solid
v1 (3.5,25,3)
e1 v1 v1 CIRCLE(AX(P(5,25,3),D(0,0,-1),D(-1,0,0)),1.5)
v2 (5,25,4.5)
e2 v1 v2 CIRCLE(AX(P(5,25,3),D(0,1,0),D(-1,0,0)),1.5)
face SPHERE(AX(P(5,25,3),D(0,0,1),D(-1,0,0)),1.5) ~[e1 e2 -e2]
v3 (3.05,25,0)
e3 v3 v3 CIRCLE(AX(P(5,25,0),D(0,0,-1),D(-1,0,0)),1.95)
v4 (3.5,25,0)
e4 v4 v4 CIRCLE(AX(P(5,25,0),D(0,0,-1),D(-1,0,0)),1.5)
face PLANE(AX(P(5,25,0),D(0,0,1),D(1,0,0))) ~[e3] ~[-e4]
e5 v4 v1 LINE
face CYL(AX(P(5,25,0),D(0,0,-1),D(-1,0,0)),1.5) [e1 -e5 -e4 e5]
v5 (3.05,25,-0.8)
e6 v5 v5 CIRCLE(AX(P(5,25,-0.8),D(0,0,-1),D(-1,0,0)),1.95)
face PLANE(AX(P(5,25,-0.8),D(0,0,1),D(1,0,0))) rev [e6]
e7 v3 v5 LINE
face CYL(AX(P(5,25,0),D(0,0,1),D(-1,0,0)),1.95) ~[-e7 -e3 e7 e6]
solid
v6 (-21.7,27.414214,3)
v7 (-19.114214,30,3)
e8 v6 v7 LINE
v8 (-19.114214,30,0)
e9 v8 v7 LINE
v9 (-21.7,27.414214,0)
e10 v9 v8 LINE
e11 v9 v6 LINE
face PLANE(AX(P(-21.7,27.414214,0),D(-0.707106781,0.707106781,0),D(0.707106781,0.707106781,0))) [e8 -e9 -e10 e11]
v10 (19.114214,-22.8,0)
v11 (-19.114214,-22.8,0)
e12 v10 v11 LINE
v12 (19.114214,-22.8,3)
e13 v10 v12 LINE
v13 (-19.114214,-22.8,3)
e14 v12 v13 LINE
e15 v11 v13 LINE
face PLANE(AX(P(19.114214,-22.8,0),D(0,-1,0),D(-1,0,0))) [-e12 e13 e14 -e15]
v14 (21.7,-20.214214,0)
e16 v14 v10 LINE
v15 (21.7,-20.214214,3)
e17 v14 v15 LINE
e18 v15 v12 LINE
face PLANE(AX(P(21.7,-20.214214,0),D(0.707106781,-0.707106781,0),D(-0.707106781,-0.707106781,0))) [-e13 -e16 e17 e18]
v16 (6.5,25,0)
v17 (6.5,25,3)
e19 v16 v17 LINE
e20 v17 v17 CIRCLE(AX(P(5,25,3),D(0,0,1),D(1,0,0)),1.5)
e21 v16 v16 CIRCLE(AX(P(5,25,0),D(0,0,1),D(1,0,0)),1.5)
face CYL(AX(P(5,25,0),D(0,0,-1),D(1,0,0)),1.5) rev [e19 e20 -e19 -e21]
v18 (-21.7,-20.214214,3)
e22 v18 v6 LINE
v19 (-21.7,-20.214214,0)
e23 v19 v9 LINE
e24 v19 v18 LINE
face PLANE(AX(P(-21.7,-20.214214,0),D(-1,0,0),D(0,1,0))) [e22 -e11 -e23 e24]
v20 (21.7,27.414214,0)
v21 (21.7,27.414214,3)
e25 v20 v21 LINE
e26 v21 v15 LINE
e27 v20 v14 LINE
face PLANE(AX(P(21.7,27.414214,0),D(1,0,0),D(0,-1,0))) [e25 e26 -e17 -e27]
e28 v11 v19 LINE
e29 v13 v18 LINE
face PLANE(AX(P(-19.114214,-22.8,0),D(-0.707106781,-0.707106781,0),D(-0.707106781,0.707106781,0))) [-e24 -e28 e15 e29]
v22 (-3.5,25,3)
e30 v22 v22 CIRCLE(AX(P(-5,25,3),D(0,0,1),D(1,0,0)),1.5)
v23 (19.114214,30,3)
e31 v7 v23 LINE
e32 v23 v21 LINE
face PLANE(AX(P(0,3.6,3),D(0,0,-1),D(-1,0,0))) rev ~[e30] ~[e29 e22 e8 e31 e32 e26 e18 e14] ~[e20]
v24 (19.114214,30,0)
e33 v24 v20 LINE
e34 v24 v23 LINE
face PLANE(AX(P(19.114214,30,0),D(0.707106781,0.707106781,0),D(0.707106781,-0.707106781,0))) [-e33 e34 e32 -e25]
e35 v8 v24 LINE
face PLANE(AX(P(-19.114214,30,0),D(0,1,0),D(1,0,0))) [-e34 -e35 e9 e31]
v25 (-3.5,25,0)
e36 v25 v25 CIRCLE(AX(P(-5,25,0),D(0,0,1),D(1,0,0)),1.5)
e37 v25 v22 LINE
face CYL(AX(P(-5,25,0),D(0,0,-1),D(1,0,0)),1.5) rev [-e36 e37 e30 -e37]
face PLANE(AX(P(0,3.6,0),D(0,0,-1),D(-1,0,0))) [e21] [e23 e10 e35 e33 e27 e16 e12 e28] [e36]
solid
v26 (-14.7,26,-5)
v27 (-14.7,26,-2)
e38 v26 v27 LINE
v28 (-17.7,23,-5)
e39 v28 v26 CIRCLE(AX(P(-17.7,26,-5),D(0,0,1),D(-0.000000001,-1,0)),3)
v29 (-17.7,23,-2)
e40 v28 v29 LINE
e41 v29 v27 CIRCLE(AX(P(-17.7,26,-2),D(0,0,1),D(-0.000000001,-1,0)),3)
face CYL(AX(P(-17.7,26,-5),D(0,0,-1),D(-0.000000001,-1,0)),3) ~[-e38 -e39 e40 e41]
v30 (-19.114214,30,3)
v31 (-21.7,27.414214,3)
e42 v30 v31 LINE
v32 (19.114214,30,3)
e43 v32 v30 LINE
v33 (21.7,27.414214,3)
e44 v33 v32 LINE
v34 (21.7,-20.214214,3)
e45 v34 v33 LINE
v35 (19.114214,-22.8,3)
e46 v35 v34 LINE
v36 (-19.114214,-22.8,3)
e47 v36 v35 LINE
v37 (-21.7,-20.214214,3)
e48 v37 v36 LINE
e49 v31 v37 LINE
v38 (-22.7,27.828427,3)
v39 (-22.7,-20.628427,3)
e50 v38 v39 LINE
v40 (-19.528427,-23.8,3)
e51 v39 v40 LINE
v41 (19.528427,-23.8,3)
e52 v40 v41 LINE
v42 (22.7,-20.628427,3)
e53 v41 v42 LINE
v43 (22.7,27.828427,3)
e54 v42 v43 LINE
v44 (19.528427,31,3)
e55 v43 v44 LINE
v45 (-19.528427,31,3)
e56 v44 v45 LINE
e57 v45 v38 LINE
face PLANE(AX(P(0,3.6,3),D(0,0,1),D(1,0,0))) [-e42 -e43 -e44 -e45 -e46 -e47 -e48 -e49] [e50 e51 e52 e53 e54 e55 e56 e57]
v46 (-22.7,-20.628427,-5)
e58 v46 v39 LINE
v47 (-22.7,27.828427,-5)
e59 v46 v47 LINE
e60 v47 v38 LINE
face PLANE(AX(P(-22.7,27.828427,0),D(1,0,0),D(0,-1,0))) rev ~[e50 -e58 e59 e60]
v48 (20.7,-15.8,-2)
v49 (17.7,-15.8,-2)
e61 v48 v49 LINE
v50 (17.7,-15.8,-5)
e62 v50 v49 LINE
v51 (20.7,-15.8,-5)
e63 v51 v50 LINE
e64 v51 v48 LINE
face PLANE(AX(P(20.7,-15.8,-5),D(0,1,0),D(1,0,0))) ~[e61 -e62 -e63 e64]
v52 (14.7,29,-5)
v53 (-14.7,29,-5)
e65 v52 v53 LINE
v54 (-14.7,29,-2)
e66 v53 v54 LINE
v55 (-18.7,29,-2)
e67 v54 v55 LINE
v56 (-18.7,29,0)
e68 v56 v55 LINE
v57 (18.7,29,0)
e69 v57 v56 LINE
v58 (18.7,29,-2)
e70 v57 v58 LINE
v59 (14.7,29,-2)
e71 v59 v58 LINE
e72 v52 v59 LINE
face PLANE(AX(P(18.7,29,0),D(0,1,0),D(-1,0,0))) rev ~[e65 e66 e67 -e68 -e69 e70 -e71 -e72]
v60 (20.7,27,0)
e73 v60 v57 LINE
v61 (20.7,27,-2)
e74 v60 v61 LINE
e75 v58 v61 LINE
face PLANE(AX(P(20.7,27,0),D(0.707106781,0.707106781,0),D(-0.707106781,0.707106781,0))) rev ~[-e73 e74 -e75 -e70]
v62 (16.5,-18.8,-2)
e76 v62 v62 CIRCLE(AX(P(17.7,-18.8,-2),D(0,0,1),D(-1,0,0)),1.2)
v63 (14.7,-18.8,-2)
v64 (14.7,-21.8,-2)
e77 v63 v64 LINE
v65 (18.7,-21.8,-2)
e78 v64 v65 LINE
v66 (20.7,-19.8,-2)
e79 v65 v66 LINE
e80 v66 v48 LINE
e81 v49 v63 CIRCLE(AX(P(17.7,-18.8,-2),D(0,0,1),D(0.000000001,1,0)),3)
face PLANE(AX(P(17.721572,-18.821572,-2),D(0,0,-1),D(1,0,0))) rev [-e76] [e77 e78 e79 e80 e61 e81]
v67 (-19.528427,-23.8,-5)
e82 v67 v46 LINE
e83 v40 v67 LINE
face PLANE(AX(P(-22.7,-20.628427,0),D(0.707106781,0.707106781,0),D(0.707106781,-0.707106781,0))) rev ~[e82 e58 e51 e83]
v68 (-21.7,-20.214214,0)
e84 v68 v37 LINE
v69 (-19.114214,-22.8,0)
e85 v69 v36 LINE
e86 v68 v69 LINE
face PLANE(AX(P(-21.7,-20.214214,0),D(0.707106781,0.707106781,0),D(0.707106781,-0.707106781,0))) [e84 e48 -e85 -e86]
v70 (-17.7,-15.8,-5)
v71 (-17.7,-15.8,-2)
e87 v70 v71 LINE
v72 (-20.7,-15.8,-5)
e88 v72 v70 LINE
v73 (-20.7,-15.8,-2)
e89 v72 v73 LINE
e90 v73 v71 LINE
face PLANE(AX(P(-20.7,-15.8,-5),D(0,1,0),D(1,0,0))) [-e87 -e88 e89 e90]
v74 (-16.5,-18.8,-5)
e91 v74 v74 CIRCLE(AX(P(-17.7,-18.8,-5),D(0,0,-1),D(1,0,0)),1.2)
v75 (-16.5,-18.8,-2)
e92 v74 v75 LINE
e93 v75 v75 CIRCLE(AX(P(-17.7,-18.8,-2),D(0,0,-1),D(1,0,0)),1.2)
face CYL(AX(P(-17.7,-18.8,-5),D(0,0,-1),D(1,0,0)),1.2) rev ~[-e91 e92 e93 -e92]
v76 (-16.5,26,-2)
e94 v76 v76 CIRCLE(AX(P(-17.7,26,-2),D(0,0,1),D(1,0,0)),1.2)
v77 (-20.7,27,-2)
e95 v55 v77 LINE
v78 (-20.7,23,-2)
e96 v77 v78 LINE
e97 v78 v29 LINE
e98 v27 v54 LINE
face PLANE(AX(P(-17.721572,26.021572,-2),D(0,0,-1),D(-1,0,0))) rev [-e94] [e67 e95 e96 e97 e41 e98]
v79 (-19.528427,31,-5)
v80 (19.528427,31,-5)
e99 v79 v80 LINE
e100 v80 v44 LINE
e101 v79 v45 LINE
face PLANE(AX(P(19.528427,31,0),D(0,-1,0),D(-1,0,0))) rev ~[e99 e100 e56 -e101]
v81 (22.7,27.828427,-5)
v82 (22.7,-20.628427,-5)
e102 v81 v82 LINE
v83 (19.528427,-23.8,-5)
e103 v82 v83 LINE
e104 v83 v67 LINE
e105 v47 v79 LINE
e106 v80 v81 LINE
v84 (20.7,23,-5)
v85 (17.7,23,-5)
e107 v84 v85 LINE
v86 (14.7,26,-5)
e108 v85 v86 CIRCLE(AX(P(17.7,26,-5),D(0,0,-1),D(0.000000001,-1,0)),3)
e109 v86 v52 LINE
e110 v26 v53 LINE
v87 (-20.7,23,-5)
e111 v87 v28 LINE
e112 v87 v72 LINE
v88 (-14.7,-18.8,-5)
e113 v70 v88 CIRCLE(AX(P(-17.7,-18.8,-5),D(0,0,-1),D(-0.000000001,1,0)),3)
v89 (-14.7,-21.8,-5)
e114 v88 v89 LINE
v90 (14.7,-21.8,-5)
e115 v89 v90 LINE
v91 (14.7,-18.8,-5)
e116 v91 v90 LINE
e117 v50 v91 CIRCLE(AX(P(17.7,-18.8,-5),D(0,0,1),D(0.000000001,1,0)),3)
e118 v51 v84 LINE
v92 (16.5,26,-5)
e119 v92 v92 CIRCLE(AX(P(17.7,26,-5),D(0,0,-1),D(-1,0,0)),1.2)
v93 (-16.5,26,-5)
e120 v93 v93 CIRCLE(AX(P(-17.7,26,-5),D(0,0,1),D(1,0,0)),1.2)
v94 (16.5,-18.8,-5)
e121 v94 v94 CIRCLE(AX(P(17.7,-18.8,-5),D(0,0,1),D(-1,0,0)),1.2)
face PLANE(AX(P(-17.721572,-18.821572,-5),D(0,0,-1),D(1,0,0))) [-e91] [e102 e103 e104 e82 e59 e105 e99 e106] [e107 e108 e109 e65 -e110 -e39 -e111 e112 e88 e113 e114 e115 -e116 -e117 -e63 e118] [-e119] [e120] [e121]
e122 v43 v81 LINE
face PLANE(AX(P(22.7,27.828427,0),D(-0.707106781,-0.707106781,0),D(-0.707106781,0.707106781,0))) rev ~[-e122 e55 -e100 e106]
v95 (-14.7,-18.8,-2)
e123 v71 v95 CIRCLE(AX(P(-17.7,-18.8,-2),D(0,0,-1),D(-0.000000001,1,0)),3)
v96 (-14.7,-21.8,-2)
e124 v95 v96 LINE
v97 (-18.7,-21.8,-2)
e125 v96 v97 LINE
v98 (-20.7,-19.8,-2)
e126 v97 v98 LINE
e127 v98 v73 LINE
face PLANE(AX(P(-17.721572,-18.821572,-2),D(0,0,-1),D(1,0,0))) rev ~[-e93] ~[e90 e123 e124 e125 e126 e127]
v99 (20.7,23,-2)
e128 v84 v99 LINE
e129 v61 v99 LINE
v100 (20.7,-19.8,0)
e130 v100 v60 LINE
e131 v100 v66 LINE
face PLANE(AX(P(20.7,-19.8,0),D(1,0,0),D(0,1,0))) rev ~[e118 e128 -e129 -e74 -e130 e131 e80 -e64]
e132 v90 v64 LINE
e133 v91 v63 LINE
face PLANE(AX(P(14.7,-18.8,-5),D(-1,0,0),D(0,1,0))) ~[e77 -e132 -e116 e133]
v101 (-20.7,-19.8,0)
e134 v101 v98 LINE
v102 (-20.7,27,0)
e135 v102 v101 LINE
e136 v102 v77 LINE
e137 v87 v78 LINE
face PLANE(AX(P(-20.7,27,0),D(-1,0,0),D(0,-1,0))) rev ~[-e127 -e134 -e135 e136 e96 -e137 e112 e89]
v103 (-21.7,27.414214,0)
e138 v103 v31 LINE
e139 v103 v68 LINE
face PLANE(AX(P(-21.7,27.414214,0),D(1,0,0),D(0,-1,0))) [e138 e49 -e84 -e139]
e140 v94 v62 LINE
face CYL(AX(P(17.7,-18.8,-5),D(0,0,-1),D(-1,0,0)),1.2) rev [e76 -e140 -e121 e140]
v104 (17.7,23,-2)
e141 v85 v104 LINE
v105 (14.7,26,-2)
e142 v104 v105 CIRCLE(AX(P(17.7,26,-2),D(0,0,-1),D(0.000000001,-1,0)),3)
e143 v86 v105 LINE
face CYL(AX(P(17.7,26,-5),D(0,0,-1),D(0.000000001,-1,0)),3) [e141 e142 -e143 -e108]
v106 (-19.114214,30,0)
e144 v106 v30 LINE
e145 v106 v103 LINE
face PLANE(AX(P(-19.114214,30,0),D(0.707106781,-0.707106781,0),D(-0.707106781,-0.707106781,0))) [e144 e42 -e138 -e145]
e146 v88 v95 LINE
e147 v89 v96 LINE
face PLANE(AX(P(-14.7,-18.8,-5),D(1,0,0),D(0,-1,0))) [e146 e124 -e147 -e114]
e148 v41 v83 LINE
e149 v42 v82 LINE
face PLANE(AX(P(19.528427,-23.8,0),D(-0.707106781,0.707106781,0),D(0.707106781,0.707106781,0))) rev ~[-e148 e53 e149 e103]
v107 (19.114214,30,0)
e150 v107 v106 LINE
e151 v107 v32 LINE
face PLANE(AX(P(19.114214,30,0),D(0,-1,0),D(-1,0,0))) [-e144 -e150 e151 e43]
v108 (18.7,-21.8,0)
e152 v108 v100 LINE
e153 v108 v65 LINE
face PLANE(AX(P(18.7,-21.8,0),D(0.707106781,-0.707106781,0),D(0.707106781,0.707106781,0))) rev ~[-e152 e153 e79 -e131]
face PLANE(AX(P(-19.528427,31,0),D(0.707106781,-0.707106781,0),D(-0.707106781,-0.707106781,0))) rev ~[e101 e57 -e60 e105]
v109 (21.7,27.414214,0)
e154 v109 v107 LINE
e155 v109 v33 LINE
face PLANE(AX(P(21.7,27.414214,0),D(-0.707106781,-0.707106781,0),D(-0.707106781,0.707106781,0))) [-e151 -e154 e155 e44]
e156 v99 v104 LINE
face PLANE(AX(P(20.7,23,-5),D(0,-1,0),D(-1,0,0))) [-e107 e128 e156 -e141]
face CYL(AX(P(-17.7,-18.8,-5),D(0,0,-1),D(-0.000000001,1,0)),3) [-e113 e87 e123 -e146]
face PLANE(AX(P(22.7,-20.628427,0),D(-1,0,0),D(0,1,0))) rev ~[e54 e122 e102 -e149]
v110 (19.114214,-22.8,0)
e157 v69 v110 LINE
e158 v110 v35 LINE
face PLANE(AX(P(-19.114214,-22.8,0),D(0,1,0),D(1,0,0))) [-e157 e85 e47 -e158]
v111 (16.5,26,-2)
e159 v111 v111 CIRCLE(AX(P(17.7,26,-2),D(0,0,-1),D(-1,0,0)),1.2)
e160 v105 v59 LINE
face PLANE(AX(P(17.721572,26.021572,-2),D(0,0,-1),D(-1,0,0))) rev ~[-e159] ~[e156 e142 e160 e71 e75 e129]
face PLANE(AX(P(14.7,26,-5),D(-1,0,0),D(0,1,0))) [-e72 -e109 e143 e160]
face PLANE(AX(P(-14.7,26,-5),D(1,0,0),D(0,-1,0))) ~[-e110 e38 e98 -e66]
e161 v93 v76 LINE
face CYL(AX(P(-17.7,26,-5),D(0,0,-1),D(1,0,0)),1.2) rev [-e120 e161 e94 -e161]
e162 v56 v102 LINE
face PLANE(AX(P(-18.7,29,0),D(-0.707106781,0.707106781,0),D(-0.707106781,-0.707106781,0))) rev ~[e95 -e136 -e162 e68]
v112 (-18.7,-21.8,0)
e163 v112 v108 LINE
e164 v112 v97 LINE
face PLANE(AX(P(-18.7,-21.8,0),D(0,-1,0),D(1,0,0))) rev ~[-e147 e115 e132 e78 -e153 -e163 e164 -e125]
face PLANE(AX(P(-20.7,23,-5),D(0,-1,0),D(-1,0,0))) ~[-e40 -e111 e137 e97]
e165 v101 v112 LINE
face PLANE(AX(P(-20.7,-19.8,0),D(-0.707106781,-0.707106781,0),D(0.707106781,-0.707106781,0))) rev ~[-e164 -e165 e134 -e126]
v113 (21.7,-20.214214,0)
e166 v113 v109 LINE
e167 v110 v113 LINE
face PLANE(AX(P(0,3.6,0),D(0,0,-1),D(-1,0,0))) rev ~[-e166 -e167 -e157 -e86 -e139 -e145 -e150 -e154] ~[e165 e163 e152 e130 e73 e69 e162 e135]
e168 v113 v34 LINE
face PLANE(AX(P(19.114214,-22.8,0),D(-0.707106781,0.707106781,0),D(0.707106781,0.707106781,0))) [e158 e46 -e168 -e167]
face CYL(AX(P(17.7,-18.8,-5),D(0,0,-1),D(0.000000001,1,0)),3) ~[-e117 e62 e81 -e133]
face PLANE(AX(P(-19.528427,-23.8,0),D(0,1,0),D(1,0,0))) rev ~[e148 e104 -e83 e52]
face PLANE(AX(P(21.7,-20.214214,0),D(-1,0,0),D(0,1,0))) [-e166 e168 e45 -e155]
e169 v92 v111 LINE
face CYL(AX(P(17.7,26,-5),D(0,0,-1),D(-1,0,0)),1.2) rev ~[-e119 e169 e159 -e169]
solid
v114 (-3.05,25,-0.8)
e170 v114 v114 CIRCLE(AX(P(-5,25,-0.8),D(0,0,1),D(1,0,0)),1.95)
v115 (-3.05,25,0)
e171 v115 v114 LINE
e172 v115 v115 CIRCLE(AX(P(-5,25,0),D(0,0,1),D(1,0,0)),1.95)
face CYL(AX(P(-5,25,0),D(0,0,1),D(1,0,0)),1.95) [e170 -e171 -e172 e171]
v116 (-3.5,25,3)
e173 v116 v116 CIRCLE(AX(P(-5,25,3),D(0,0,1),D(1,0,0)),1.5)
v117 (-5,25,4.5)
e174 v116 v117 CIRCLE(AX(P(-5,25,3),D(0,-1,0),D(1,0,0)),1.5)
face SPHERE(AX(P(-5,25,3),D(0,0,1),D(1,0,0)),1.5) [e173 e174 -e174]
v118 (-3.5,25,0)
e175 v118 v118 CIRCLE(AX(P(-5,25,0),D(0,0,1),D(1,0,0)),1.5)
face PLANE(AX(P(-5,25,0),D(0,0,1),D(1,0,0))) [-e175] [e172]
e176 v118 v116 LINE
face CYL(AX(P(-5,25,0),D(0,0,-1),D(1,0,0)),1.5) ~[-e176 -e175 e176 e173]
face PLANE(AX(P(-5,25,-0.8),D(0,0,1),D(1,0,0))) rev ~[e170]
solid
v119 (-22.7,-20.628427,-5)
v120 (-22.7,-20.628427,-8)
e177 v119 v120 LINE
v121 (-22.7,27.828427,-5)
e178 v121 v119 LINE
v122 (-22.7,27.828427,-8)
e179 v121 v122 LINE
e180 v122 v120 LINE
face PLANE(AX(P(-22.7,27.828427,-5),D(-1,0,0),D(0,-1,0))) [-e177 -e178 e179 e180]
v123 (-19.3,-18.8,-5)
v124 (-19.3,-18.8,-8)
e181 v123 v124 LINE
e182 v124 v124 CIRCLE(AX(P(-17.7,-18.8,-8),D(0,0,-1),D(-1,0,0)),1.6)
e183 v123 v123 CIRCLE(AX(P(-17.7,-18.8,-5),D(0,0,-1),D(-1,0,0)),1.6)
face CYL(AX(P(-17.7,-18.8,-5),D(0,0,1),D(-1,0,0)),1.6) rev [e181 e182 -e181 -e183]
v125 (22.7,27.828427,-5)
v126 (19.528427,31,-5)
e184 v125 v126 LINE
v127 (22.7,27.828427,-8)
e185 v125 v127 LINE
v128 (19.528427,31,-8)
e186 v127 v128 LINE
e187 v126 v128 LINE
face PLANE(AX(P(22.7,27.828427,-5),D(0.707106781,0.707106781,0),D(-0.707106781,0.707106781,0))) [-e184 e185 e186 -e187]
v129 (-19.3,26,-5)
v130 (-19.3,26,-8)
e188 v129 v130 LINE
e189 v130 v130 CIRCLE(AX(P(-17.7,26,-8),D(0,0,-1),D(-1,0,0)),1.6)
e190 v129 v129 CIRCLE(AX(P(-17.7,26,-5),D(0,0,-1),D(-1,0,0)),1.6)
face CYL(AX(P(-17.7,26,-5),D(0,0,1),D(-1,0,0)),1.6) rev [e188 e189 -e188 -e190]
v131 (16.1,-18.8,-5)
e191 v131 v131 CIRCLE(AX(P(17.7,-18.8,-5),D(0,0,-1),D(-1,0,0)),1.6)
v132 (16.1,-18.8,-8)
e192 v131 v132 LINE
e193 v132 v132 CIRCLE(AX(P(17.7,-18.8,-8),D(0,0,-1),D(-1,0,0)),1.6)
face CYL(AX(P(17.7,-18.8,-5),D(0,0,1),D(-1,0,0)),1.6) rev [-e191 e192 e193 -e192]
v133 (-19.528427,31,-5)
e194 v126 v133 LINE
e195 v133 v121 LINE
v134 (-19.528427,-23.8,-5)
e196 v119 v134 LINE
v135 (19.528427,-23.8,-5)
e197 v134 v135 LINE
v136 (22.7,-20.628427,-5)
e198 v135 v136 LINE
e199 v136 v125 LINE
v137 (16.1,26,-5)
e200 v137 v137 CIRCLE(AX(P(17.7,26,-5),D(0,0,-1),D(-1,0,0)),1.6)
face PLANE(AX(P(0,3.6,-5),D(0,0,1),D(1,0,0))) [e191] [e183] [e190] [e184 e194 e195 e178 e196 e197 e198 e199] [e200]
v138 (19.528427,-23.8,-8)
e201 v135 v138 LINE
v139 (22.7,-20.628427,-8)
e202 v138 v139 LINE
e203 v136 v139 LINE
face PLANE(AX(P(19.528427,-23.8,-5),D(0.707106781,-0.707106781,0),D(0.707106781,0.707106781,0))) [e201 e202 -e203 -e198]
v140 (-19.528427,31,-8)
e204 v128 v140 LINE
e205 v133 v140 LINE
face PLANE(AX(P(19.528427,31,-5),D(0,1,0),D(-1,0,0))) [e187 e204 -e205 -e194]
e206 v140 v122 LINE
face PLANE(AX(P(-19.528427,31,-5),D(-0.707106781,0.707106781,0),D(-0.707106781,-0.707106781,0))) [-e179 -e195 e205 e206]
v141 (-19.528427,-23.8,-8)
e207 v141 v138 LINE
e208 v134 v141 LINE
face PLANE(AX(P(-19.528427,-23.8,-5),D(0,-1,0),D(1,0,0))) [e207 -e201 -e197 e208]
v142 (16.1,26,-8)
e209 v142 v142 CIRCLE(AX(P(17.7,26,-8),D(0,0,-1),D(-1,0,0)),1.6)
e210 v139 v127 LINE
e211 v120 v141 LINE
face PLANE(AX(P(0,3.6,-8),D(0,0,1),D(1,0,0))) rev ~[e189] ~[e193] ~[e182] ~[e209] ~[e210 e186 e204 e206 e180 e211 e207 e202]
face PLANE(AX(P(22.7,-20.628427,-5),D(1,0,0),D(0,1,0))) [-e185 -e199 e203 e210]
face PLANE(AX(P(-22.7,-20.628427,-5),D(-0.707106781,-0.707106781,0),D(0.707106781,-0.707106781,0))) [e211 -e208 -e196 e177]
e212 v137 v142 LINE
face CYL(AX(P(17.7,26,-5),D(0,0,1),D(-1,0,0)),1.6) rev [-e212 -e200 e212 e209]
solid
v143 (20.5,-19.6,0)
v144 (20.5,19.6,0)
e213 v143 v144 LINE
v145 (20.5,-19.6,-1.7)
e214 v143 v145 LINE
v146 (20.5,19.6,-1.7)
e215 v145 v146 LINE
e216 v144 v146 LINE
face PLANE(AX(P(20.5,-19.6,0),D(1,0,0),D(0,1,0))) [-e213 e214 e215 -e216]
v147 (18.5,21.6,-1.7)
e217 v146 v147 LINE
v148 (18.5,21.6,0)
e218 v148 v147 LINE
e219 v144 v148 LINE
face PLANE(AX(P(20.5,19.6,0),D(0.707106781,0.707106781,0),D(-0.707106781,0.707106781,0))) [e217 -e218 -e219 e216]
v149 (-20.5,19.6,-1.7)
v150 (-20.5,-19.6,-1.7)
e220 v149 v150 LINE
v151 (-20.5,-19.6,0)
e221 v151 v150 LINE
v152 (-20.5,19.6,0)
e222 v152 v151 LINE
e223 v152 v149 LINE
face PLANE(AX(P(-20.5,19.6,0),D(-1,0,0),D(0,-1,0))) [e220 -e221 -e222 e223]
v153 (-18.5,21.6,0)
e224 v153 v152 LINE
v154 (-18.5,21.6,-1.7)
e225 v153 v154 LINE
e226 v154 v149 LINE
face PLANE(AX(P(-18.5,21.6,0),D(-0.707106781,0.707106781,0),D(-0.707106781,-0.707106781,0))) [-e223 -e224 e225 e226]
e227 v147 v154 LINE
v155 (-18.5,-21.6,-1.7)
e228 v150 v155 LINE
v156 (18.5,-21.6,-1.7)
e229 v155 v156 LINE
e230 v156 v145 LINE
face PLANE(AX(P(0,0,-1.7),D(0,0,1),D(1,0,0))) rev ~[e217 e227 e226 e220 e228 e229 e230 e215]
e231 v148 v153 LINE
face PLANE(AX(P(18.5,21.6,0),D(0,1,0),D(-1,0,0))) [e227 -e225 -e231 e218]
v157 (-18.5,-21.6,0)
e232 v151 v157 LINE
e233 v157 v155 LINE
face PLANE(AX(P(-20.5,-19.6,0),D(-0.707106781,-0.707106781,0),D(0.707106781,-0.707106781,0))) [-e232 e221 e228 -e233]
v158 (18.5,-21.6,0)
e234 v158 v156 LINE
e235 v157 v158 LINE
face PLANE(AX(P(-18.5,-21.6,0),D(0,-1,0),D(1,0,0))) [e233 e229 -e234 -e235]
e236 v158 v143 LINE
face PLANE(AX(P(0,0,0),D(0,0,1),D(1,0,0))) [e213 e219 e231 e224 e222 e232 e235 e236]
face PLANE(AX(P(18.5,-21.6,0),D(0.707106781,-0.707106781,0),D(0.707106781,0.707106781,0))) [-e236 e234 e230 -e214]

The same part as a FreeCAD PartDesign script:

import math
import FreeCAD as App
import Part
import Sketcher
from FreeCAD import Vector


def edges_at(feature, points):
    """Names of the edges that pass closest to the given points."""
    edges = feature.Shape.Edges
    near = lambda p: min(range(len(edges)), key=lambda i: edges[i].distToShape(Part.Vertex(*p))[0])
    return sorted({f"Edge{near(p) + 1}" for p in points})

doc = App.newDocument("Part")
body = doc.addObject("PartDesign::Body", "Body")

# Sketch on XY plane
sketch1 = body.newObject("Sketcher::SketchObject", "Sketch")
sketch1.AttachmentSupport = (doc.getObject("XY_Plane"), [""])
sketch1.MapMode = "FlatFace"
sketch1.addGeometry([
    Part.LineSegment(Vector(-18.5, 21.6, 0), Vector(-20.5, 19.6, 0)),  # 0
    Part.LineSegment(Vector(-20.5, 19.6, 0), Vector(-20.5, -19.6, 0)),  # 1
    Part.LineSegment(Vector(-20.5, -19.6, 0), Vector(-18.5, -21.6, 0)),  # 2
    Part.LineSegment(Vector(-18.5, -21.6, 0), Vector(18.5, -21.6, 0)),  # 3
    Part.LineSegment(Vector(18.5, -21.6, 0), Vector(20.5, -19.6, 0)),  # 4
    Part.LineSegment(Vector(20.5, -19.6, 0), Vector(20.5, 19.6, 0)),  # 5
    Part.LineSegment(Vector(20.5, 19.6, 0), Vector(18.5, 21.6, 0)),  # 6
    Part.LineSegment(Vector(18.5, 21.6, 0), Vector(-18.5, 21.6, 0)),  # 7
], False)
sketch1.addConstraint([
    Sketcher.Constraint("Coincident", 0, 2, 1, 1),
    Sketcher.Constraint("Coincident", 1, 2, 2, 1),
    Sketcher.Constraint("Coincident", 2, 2, 3, 1),
    Sketcher.Constraint("Coincident", 3, 2, 4, 1),
    Sketcher.Constraint("Coincident", 4, 2, 5, 1),
    Sketcher.Constraint("Coincident", 5, 2, 6, 1),
    Sketcher.Constraint("Coincident", 6, 2, 7, 1),
    Sketcher.Constraint("Coincident", 7, 2, 0, 1),
    Sketcher.Constraint("Vertical", 1),
    Sketcher.Constraint("Horizontal", 3),
    Sketcher.Constraint("Vertical", 5),
    Sketcher.Constraint("Horizontal", 7),
    Sketcher.Constraint("Symmetric", 0, 2, 4, 2, -1, 1),
    Sketcher.Constraint("Symmetric", 2, 2, 6, 2, -1, 1),
    Sketcher.Constraint("Perpendicular", 0, 2),
    Sketcher.Constraint("Perpendicular", 2, 4),
    Sketcher.Constraint("Perpendicular", 4, 6),
    Sketcher.Constraint("Horizontal", 1, 2, 4, 2),
    Sketcher.Constraint("Vertical", 3, 2, 6, 2),
    Sketcher.Constraint("DistanceX", 3, 1, 3, 2, 37.0),
    Sketcher.Constraint("DistanceY", 1, 2, 1, 1, 39.2),
    Sketcher.Constraint("DistanceX", 1, 2, 2, 2, 2.0),
])
pad1 = body.newObject("PartDesign::Pad", "Pad")
pad1.Profile = sketch1
pad1.Length = 1.7
pad1.Reversed = True
body2 = doc.addObject("PartDesign::Body", "Body001")

# Sketch on XY plane
sketch2 = body2.newObject("Sketcher::SketchObject", "Sketch001")
sketch2.AttachmentSupport = (doc.getObject("XY_Plane001"), [""])
sketch2.MapMode = "FlatFace"
sketch2.addGeometry(Part.Circle(Vector(-5, 25, 0), Vector(0, 0, 1), 1.9), False)
sketch2.addConstraint([
    Sketcher.Constraint("Diameter", 0, 3.9),
    Sketcher.Constraint("DistanceX", 0, 3, -1, 1, 5.0),
    Sketcher.Constraint("DistanceY", -1, 1, 0, 3, 25.0),
])
pad2 = body2.newObject("PartDesign::Pad", "Pad001")
pad2.Profile = sketch2
pad2.Length = 0.8
pad2.Reversed = True

# Sketch on XY plane
sketch3 = body2.newObject("Sketcher::SketchObject", "Sketch002")
sketch3.AttachmentSupport = (doc.getObject("XY_Plane001"), [""])
sketch3.MapMode = "FlatFace"
sketch3.addGeometry(Part.Circle(Vector(-5, 25, 0), Vector(0, 0, 1), 1.5), False)
sketch3.addConstraint([
    Sketcher.Constraint("Diameter", 0, 3.0),
    Sketcher.Constraint("DistanceX", 0, 3, -1, 1, 5.0),
    Sketcher.Constraint("DistanceY", -1, 1, 0, 3, 25.0),
])
pad3 = body2.newObject("PartDesign::Pad", "Pad002")
pad3.Profile = sketch3
pad3.Length = 4.5
doc.recompute()

fillet = body2.newObject("PartDesign::Fillet", "Fillet")
fillet.Base = (pad3, edges_at(pad3, [(-6.5, 25, 4.5)]))
fillet.Radius = 1.5
body3 = doc.addObject("PartDesign::Body", "Body002")
doc.recompute()

mirroring = doc.addObject("Part::Mirroring", "Mirroring")
mirroring.Source = body2
mirroring.Base = Vector(0, 0, 0)
mirroring.Normal = Vector(1, 0, 0)
body3.BaseFeature = mirroring
doc.recompute()
body4 = doc.addObject("PartDesign::Body", "Body003")

# Sketch on XY plane
sketch4 = body4.newObject("Sketcher::SketchObject", "Sketch003")
sketch4.AttachmentSupport = (doc.getObject("XY_Plane003"), [""])
sketch4.MapMode = "FlatFace"
sketch4.addGeometry([
    Part.LineSegment(Vector(19.5, 31, 0), Vector(-19.5, 31, 0)),  # 0
    Part.LineSegment(Vector(-19.5, 31, 0), Vector(-22.7, 27.8, 0)),  # 1
    Part.LineSegment(Vector(-22.7, 27.8, 0), Vector(-22.7, -20.6, 0)),  # 2
    Part.LineSegment(Vector(-22.7, -20.6, 0), Vector(-19.5, -23.8, 0)),  # 3
    Part.LineSegment(Vector(-19.5, -23.8, 0), Vector(19.5, -23.8, 0)),  # 4
    Part.LineSegment(Vector(19.5, -23.8, 0), Vector(22.7, -20.6, 0)),  # 5
    Part.LineSegment(Vector(22.7, -20.6, 0), Vector(22.7, 27.8, 0)),  # 6
    Part.LineSegment(Vector(22.7, 27.8, 0), Vector(19.5, 31, 0)),  # 7
    Part.LineSegment(Vector(-18.7, -21.8, 0), Vector(-20.7, -19.8, 0)),  # 8
    Part.LineSegment(Vector(-20.7, -19.8, 0), Vector(-20.7, 27, 0)),  # 9
    Part.LineSegment(Vector(-20.7, 27, 0), Vector(-18.7, 29, 0)),  # 10
    Part.LineSegment(Vector(-18.7, 29, 0), Vector(18.7, 29, 0)),  # 11
    Part.LineSegment(Vector(18.7, 29, 0), Vector(20.7, 27, 0)),  # 12
    Part.LineSegment(Vector(20.7, 27, 0), Vector(20.7, -19.8, 0)),  # 13
    Part.LineSegment(Vector(20.7, -19.8, 0), Vector(18.7, -21.8, 0)),  # 14
    Part.LineSegment(Vector(18.7, -21.8, 0), Vector(-18.7, -21.8, 0)),  # 15
], False)
sketch4.addConstraint([
    Sketcher.Constraint("Coincident", 0, 2, 1, 1),
    Sketcher.Constraint("Coincident", 1, 2, 2, 1),
    Sketcher.Constraint("Coincident", 2, 2, 3, 1),
    Sketcher.Constraint("Coincident", 3, 2, 4, 1),
    Sketcher.Constraint("Coincident", 4, 2, 5, 1),
    Sketcher.Constraint("Coincident", 5, 2, 6, 1),
    Sketcher.Constraint("Coincident", 6, 2, 7, 1),
    Sketcher.Constraint("Coincident", 7, 2, 0, 1),
    Sketcher.Constraint("Coincident", 8, 2, 9, 1),
    Sketcher.Constraint("Coincident", 9, 2, 10, 1),
    Sketcher.Constraint("Coincident", 10, 2, 11, 1),
    Sketcher.Constraint("Coincident", 11, 2, 12, 1),
    Sketcher.Constraint("Coincident", 12, 2, 13, 1),
    Sketcher.Constraint("Coincident", 13, 2, 14, 1),
    Sketcher.Constraint("Coincident", 14, 2, 15, 1),
    Sketcher.Constraint("Coincident", 15, 2, 8, 1),
    Sketcher.Constraint("Horizontal", 0),
    Sketcher.Constraint("Vertical", 2),
    Sketcher.Constraint("Horizontal", 4),
    Sketcher.Constraint("Vertical", 6),
    Sketcher.Constraint("Vertical", 9),
    Sketcher.Constraint("Horizontal", 11),
    Sketcher.Constraint("Vertical", 13),
    Sketcher.Constraint("Horizontal", 15),
    Sketcher.Constraint("Symmetric", 2, 2, 5, 2, -2),
    Sketcher.Constraint("Symmetric", 9, 2, 12, 2, -2),
    Sketcher.Constraint("Perpendicular", 1, 3),
    Sketcher.Constraint("Perpendicular", 3, 5),
    Sketcher.Constraint("Perpendicular", 5, 7),
    Sketcher.Constraint("Parallel", 7, 8),
    Sketcher.Constraint("Perpendicular", 8, 10),
    Sketcher.Constraint("Perpendicular", 10, 12),
    Sketcher.Constraint("Perpendicular", 12, 14),
    Sketcher.Constraint("Horizontal", 1, 2, 6, 2),
    Sketcher.Constraint("Horizontal", 8, 2, 13, 2),
    Sketcher.Constraint("Vertical", 0, 2, 3, 2),
    Sketcher.Constraint("Vertical", 4, 2, 7, 2),
    Sketcher.Constraint("Vertical", 11, 2, 14, 2),
    Sketcher.Constraint("DistanceX", 11, 1, 11, 2, 37.4),
    Sketcher.Constraint("DistanceY", 9, 1, 9, 2, 46.8),
    Sketcher.Constraint("DistanceY", -1, 1, 0, 2, 31.0),
    Sketcher.Constraint("DistanceY", -1, 1, 9, 2, 27.0),
    Sketcher.Constraint("DistanceY", -1, 1, 10, 2, 29.0),
    Sketcher.Constraint("DistanceX", 2, 2, 8, 2, 2.0),
    Sketcher.Constraint("DistanceY", 3, 2, 8, 2, 4.0),
    Sketcher.Constraint("Distance", 1, 4.485281),
])
pad4 = body4.newObject("PartDesign::Pad", "Pad003")
pad4.Profile = sketch4
pad4.Length = 5
pad4.Reversed = True

# Sketch on XY plane
sketch5 = body4.newObject("Sketcher::SketchObject", "Sketch004")
sketch5.AttachmentSupport = (doc.getObject("XY_Plane003"), [""])
sketch5.MapMode = "FlatFace"
sketch5.addGeometry([
    Part.LineSegment(Vector(22.7, 27.8, 0), Vector(19.5, 31, 0)),  # 0
    Part.LineSegment(Vector(19.5, 31, 0), Vector(-19.5, 31, 0)),  # 1
    Part.LineSegment(Vector(-19.5, 31, 0), Vector(-22.7, 27.8, 0)),  # 2
    Part.LineSegment(Vector(-22.7, 27.8, 0), Vector(-22.7, -20.6, 0)),  # 3
    Part.LineSegment(Vector(-22.7, -20.6, 0), Vector(-19.5, -23.8, 0)),  # 4
    Part.LineSegment(Vector(-19.5, -23.8, 0), Vector(19.5, -23.8, 0)),  # 5
    Part.LineSegment(Vector(19.5, -23.8, 0), Vector(22.7, -20.6, 0)),  # 6
    Part.LineSegment(Vector(22.7, -20.6, 0), Vector(22.7, 27.8, 0)),  # 7
    Part.LineSegment(Vector(19.1, 30, 0), Vector(21.7, 27.4, 0)),  # 8
    Part.LineSegment(Vector(21.7, 27.4, 0), Vector(21.7, -20.2, 0)),  # 9
    Part.LineSegment(Vector(21.7, -20.2, 0), Vector(19.1, -22.8, 0)),  # 10
    Part.LineSegment(Vector(19.1, -22.8, 0), Vector(-19.1, -22.8, 0)),  # 11
    Part.LineSegment(Vector(-19.1, -22.8, 0), Vector(-21.7, -20.2, 0)),  # 12
    Part.LineSegment(Vector(-21.7, -20.2, 0), Vector(-21.7, 27.4, 0)),  # 13
    Part.LineSegment(Vector(-21.7, 27.4, 0), Vector(-19.1, 30, 0)),  # 14
    Part.LineSegment(Vector(-19.1, 30, 0), Vector(19.1, 30, 0)),  # 15
], False)
sketch5.addConstraint([
    Sketcher.Constraint("Coincident", 0, 2, 1, 1),
    Sketcher.Constraint("Coincident", 1, 2, 2, 1),
    Sketcher.Constraint("Coincident", 2, 2, 3, 1),
    Sketcher.Constraint("Coincident", 3, 2, 4, 1),
    Sketcher.Constraint("Coincident", 4, 2, 5, 1),
    Sketcher.Constraint("Coincident", 5, 2, 6, 1),
    Sketcher.Constraint("Coincident", 6, 2, 7, 1),
    Sketcher.Constraint("Coincident", 7, 2, 0, 1),
    Sketcher.Constraint("Coincident", 8, 2, 9, 1),
    Sketcher.Constraint("Coincident", 9, 2, 10, 1),
    Sketcher.Constraint("Coincident", 10, 2, 11, 1),
    Sketcher.Constraint("Coincident", 11, 2, 12, 1),
    Sketcher.Constraint("Coincident", 12, 2, 13, 1),
    Sketcher.Constraint("Coincident", 13, 2, 14, 1),
    Sketcher.Constraint("Coincident", 14, 2, 15, 1),
    Sketcher.Constraint("Coincident", 15, 2, 8, 1),
    Sketcher.Constraint("Horizontal", 1),
    Sketcher.Constraint("Vertical", 3),
    Sketcher.Constraint("Horizontal", 5),
    Sketcher.Constraint("Vertical", 7),
    Sketcher.Constraint("Vertical", 9),
    Sketcher.Constraint("Horizontal", 11),
    Sketcher.Constraint("Vertical", 13),
    Sketcher.Constraint("Horizontal", 15),
    Sketcher.Constraint("Symmetric", 3, 2, 6, 2, -2),
    Sketcher.Constraint("Symmetric", 9, 2, 12, 2, -2),
    Sketcher.Constraint("Perpendicular", 0, 2),
    Sketcher.Constraint("Perpendicular", 2, 4),
    Sketcher.Constraint("Perpendicular", 4, 6),
    Sketcher.Constraint("Perpendicular", 6, 8),
    Sketcher.Constraint("Perpendicular", 8, 10),
    Sketcher.Constraint("Perpendicular", 10, 12),
    Sketcher.Constraint("Perpendicular", 12, 14),
    Sketcher.Constraint("Horizontal", 2, 2, 7, 2),
    Sketcher.Constraint("Horizontal", 8, 2, 13, 2),
    Sketcher.Constraint("Vertical", 1, 2, 4, 2),
    Sketcher.Constraint("Vertical", 0, 2, 5, 2),
    Sketcher.Constraint("Vertical", 11, 2, 14, 2),
    Sketcher.Constraint("DistanceY", -1, 1, 0, 2, 31.0),
    Sketcher.Constraint("DistanceY", -1, 1, 14, 2, 30.0),
    Sketcher.Constraint("DistanceX", 8, 2, 7, 2, 1.0),
    Sketcher.Constraint("DistanceY", 5, 2, 10, 2, 1.0),
    Sketcher.Constraint("DistanceX", 2, 2, -1, 1, 22.7),
    Sketcher.Constraint("DistanceY", 4, 2, -1, 1, 23.8),
    Sketcher.Constraint("Distance", 0, 4.485281),
    Sketcher.Constraint("DistanceX", 11, 2, 11, 1, 38.228427),
])
pad5 = body4.newObject("PartDesign::Pad", "Pad004")
pad5.Profile = sketch5
pad5.Length = 3

# Sketch on XY plane
sketch6 = body4.newObject("Sketcher::SketchObject", "Sketch005")
sketch6.AttachmentSupport = (doc.getObject("XY_Plane003"), [""])
sketch6.MapMode = "FlatFace"
sketch6.AttachmentOffset = App.Placement(Vector(0, 0, -5), App.Rotation())
sketch6.addGeometry([
    Part.LineSegment(Vector(14.7, 29, 0), Vector(18.7, 29, 0)),  # 0
    Part.LineSegment(Vector(18.7, 29, 0), Vector(20.7, 27, 0)),  # 1
    Part.LineSegment(Vector(20.7, 27, 0), Vector(20.7, 23, 0)),  # 2
    Part.LineSegment(Vector(20.7, 23, 0), Vector(17.7, 23, 0)),  # 3
    Part.ArcOfCircle(Part.Circle(Vector(17.7, 26, 0), Vector(0, 0, 1), 3), math.radians(180), math.radians(270)),  # 4
    Part.LineSegment(Vector(14.7, 26, 0), Vector(14.7, 29, 0)),  # 5
    Part.Circle(Vector(17.7, 26, 0), Vector(0, 0, 1), 1.2),  # 6
], False)
sketch6.addConstraint([
    Sketcher.Constraint("Coincident", 0, 2, 1, 1),
    Sketcher.Constraint("Coincident", 1, 2, 2, 1),
    Sketcher.Constraint("Coincident", 2, 2, 3, 1),
    Sketcher.Constraint("Tangent", 3, 2, 4, 2),
    Sketcher.Constraint("Tangent", 4, 1, 5, 1),
    Sketcher.Constraint("Coincident", 5, 2, 0, 1),
    Sketcher.Constraint("Horizontal", 0),
    Sketcher.Constraint("Vertical", 2),
    Sketcher.Constraint("Horizontal", 3),
    Sketcher.Constraint("Vertical", 5),
    Sketcher.Constraint("Coincident", 6, 3, 4, 3),
    Sketcher.Constraint("Equal", 0, 2),
    Sketcher.Constraint("Equal", 3, 5),
    Sketcher.Constraint("Radius", 4, 3.0),
    Sketcher.Constraint("Diameter", 6, 2.4),
    Sketcher.Constraint("DistanceX", 0, 1, 0, 2, 4.0),
    Sketcher.Constraint("DistanceX", 3, 2, 3, 1, 3.0),
    Sketcher.Constraint("DistanceY", -1, 1, 4, 3, 26.0),
    Sketcher.Constraint("DistanceX", -1, 1, 4, 3, 17.7),
])
pad6 = body4.newObject("PartDesign::Pad", "Pad005")
pad6.Profile = sketch6
pad6.Length = 3
doc.recompute()

mirrored = body4.newObject("PartDesign::Mirrored", "Mirrored")
mirrored.Originals = [pad6]
mirrored.MirrorPlane = (doc.getObject("YZ_Plane003"), [""])
body4.Tip = mirrored
doc.recompute()

datumplane = body4.newObject("PartDesign::Plane", "DatumPlane")
datumplane.AttachmentSupport = (doc.getObject("XZ_Plane003"), [""])
datumplane.MapMode = "FlatFace"
datumplane.AttachmentOffset = App.Placement(Vector(0, 0, -3.6), App.Rotation())
mirrored2 = body4.newObject("PartDesign::Mirrored", "Mirrored001")
mirrored2.Originals = [pad6]
mirrored2.MirrorPlane = (datumplane, [""])
body4.Tip = mirrored2

# Sketch on XY plane
sketch7 = body4.newObject("Sketcher::SketchObject", "Sketch006")
sketch7.AttachmentSupport = (doc.getObject("XY_Plane003"), [""])
sketch7.MapMode = "FlatFace"
sketch7.AttachmentOffset = App.Placement(Vector(0, 0, -5), App.Rotation())
sketch7.addGeometry([
    Part.LineSegment(Vector(-14.7, -21.8, 0), Vector(-18.7, -21.8, 0)),  # 0
    Part.LineSegment(Vector(-18.7, -21.8, 0), Vector(-20.7, -19.8, 0)),  # 1
    Part.LineSegment(Vector(-20.7, -19.8, 0), Vector(-20.7, -15.8, 0)),  # 2
    Part.LineSegment(Vector(-20.7, -15.8, 0), Vector(-17.7, -15.8, 0)),  # 3
    Part.ArcOfCircle(Part.Circle(Vector(-17.7, -18.8, 0), Vector(0, 0, 1), 3), math.radians(0), math.radians(90)),  # 4
    Part.LineSegment(Vector(-14.7, -18.8, 0), Vector(-14.7, -21.8, 0)),  # 5
    Part.Circle(Vector(-17.7, -18.8, 0), Vector(0, 0, 1), 1.2),  # 6
], False)
sketch7.addConstraint([
    Sketcher.Constraint("Coincident", 0, 2, 1, 1),
    Sketcher.Constraint("Coincident", 1, 2, 2, 1),
    Sketcher.Constraint("Coincident", 2, 2, 3, 1),
    Sketcher.Constraint("Tangent", 3, 2, 4, 2),
    Sketcher.Constraint("Tangent", 4, 1, 5, 1),
    Sketcher.Constraint("Coincident", 5, 2, 0, 1),
    Sketcher.Constraint("Horizontal", 0),
    Sketcher.Constraint("Vertical", 2),
    Sketcher.Constraint("Horizontal", 3),
    Sketcher.Constraint("Vertical", 5),
    Sketcher.Constraint("Coincident", 6, 3, 4, 3),
    Sketcher.Constraint("Equal", 0, 2),
    Sketcher.Constraint("Equal", 3, 5),
    Sketcher.Constraint("Radius", 4, 3.0),
    Sketcher.Constraint("Diameter", 6, 2.4),
    Sketcher.Constraint("DistanceX", 0, 2, 0, 1, 4.0),
    Sketcher.Constraint("DistanceX", 3, 1, 3, 2, 3.0),
    Sketcher.Constraint("DistanceX", 4, 3, -1, 1, 17.7),
    Sketcher.Constraint("DistanceY", 4, 3, -1, 1, 18.8),
])
pad7 = body4.newObject("PartDesign::Pad", "Pad006")
pad7.Profile = sketch7
pad7.Length = 3
body5 = doc.addObject("PartDesign::Body", "Body004")

# Sketch on XY plane
sketch8 = body5.newObject("Sketcher::SketchObject", "Sketch007")
sketch8.AttachmentSupport = (doc.getObject("XY_Plane004"), [""])
sketch8.MapMode = "FlatFace"
sketch8.addGeometry([
    Part.LineSegment(Vector(-19.1, 30, 0), Vector(-21.7, 27.4, 0)),  # 0
    Part.LineSegment(Vector(-21.7, 27.4, 0), Vector(-21.7, -20.2, 0)),  # 1
    Part.LineSegment(Vector(-21.7, -20.2, 0), Vector(-19.1, -22.8, 0)),  # 2
    Part.LineSegment(Vector(-19.1, -22.8, 0), Vector(19.1, -22.8, 0)),  # 3
    Part.LineSegment(Vector(19.1, -22.8, 0), Vector(21.7, -20.2, 0)),  # 4
    Part.LineSegment(Vector(21.7, -20.2, 0), Vector(21.7, 27.4, 0)),  # 5
    Part.LineSegment(Vector(21.7, 27.4, 0), Vector(19.1, 30, 0)),  # 6
    Part.LineSegment(Vector(19.1, 30, 0), Vector(-19.1, 30, 0)),  # 7
    Part.Circle(Vector(5, 25, 0), Vector(0, 0, 1), 1.5),  # 8
    Part.Circle(Vector(-5, 25, 0), Vector(0, 0, 1), 1.5),  # 9
], False)
sketch8.addConstraint([
    Sketcher.Constraint("Coincident", 0, 2, 1, 1),
    Sketcher.Constraint("Coincident", 1, 2, 2, 1),
    Sketcher.Constraint("Coincident", 2, 2, 3, 1),
    Sketcher.Constraint("Coincident", 3, 2, 4, 1),
    Sketcher.Constraint("Coincident", 4, 2, 5, 1),
    Sketcher.Constraint("Coincident", 5, 2, 6, 1),
    Sketcher.Constraint("Coincident", 6, 2, 7, 1),
    Sketcher.Constraint("Coincident", 7, 2, 0, 1),
    Sketcher.Constraint("Vertical", 1),
    Sketcher.Constraint("Horizontal", 3),
    Sketcher.Constraint("Vertical", 5),
    Sketcher.Constraint("Horizontal", 7),
    Sketcher.Constraint("Equal", 8, 9),
    Sketcher.Constraint("Symmetric", 8, 3, 9, 3, -2),
    Sketcher.Constraint("Symmetric", 1, 2, 4, 2, -2),
    Sketcher.Constraint("Perpendicular", 0, 2),
    Sketcher.Constraint("Perpendicular", 2, 4),
    Sketcher.Constraint("Perpendicular", 4, 6),
    Sketcher.Constraint("Horizontal", 0, 2, 5, 2),
    Sketcher.Constraint("Vertical", 3, 2, 6, 2),
    Sketcher.Constraint("Vertical", 2, 2, 7, 2),
    Sketcher.Constraint("Diameter", 8, 3.0),
    Sketcher.Constraint("DistanceX", -1, 1, 8, 3, 5.0),
    Sketcher.Constraint("DistanceY", -1, 1, 8, 3, 25.0),
    Sketcher.Constraint("DistanceY", -1, 1, 6, 2, 30.0),
    Sketcher.Constraint("DistanceX", 0, 2, -1, 1, 21.7),
    Sketcher.Constraint("DistanceY", 2, 2, -1, 1, 22.8),
    Sketcher.Constraint("DistanceX", 3, 1, 3, 2, 38.228427),
])
pad8 = body5.newObject("PartDesign::Pad", "Pad007")
pad8.Profile = sketch8
pad8.Length = 3
body6 = doc.addObject("PartDesign::Body", "Body005")

# Sketch on XY plane
sketch9 = body6.newObject("Sketcher::SketchObject", "Sketch008")
sketch9.AttachmentSupport = (doc.getObject("XY_Plane005"), [""])
sketch9.MapMode = "FlatFace"
sketch9.AttachmentOffset = App.Placement(Vector(0, 0, -5), App.Rotation())
sketch9.addGeometry([
    Part.LineSegment(Vector(19.5, 31, 0), Vector(22.7, 27.8, 0)),  # 0
    Part.LineSegment(Vector(22.7, 27.8, 0), Vector(22.7, -20.6, 0)),  # 1
    Part.LineSegment(Vector(22.7, -20.6, 0), Vector(19.5, -23.8, 0)),  # 2
    Part.LineSegment(Vector(19.5, -23.8, 0), Vector(-19.5, -23.8, 0)),  # 3
    Part.LineSegment(Vector(-19.5, -23.8, 0), Vector(-22.7, -20.6, 0)),  # 4
    Part.LineSegment(Vector(-22.7, -20.6, 0), Vector(-22.7, 27.8, 0)),  # 5
    Part.LineSegment(Vector(-22.7, 27.8, 0), Vector(-19.5, 31, 0)),  # 6
    Part.LineSegment(Vector(-19.5, 31, 0), Vector(19.5, 31, 0)),  # 7
    Part.Circle(Vector(-17.7, -18.8, 0), Vector(0, 0, 1), 1.6),  # 8
    Part.Circle(Vector(17.7, -18.8, 0), Vector(0, 0, 1), 1.6),  # 9
    Part.Circle(Vector(-17.7, 26, 0), Vector(0, 0, 1), 1.6),  # 10
    Part.Circle(Vector(17.7, 26, 0), Vector(0, 0, 1), 1.6),  # 11
], False)
sketch9.addConstraint([
    Sketcher.Constraint("Coincident", 0, 2, 1, 1),
    Sketcher.Constraint("Coincident", 1, 2, 2, 1),
    Sketcher.Constraint("Coincident", 2, 2, 3, 1),
    Sketcher.Constraint("Coincident", 3, 2, 4, 1),
    Sketcher.Constraint("Coincident", 4, 2, 5, 1),
    Sketcher.Constraint("Coincident", 5, 2, 6, 1),
    Sketcher.Constraint("Coincident", 6, 2, 7, 1),
    Sketcher.Constraint("Coincident", 7, 2, 0, 1),
    Sketcher.Constraint("Vertical", 1),
    Sketcher.Constraint("Horizontal", 3),
    Sketcher.Constraint("Vertical", 5),
    Sketcher.Constraint("Horizontal", 7),
    Sketcher.Constraint("Equal", 8, 9),
    Sketcher.Constraint("Equal", 9, 10),
    Sketcher.Constraint("Equal", 10, 11),
    Sketcher.Constraint("Symmetric", 8, 3, 9, 3, -2),
    Sketcher.Constraint("Symmetric", 10, 3, 11, 3, -2),
    Sketcher.Constraint("Symmetric", 1, 2, 4, 2, -2),
    Sketcher.Constraint("Perpendicular", 0, 2),
    Sketcher.Constraint("Perpendicular", 2, 4),
    Sketcher.Constraint("Perpendicular", 4, 6),
    Sketcher.Constraint("Horizontal", 0, 2, 5, 2),
    Sketcher.Constraint("Vertical", 8, 3, 10, 3),
    Sketcher.Constraint("Vertical", 3, 2, 6, 2),
    Sketcher.Constraint("Vertical", 2, 2, 7, 2),
    Sketcher.Constraint("Diameter", 8, 3.2),
    Sketcher.Constraint("DistanceY", -1, 1, 10, 3, 26.0),
    Sketcher.Constraint("DistanceY", -1, 1, 6, 2, 31.0),
    Sketcher.Constraint("DistanceX", 11, 3, 0, 2, 5.0),
    Sketcher.Constraint("DistanceY", 2, 2, 9, 3, 5.0),
    Sketcher.Constraint("DistanceX", 8, 3, -1, 1, 17.7),
    Sketcher.Constraint("DistanceY", 8, 3, -1, 1, 18.8),
    Sketcher.Constraint("Distance", 0, 4.485281),
])
pad9 = body6.newObject("PartDesign::Pad", "Pad008")
pad9.Profile = sketch9
pad9.Length = 3
pad9.Reversed = True
mirroring.Visibility = False

doc.recompute()
